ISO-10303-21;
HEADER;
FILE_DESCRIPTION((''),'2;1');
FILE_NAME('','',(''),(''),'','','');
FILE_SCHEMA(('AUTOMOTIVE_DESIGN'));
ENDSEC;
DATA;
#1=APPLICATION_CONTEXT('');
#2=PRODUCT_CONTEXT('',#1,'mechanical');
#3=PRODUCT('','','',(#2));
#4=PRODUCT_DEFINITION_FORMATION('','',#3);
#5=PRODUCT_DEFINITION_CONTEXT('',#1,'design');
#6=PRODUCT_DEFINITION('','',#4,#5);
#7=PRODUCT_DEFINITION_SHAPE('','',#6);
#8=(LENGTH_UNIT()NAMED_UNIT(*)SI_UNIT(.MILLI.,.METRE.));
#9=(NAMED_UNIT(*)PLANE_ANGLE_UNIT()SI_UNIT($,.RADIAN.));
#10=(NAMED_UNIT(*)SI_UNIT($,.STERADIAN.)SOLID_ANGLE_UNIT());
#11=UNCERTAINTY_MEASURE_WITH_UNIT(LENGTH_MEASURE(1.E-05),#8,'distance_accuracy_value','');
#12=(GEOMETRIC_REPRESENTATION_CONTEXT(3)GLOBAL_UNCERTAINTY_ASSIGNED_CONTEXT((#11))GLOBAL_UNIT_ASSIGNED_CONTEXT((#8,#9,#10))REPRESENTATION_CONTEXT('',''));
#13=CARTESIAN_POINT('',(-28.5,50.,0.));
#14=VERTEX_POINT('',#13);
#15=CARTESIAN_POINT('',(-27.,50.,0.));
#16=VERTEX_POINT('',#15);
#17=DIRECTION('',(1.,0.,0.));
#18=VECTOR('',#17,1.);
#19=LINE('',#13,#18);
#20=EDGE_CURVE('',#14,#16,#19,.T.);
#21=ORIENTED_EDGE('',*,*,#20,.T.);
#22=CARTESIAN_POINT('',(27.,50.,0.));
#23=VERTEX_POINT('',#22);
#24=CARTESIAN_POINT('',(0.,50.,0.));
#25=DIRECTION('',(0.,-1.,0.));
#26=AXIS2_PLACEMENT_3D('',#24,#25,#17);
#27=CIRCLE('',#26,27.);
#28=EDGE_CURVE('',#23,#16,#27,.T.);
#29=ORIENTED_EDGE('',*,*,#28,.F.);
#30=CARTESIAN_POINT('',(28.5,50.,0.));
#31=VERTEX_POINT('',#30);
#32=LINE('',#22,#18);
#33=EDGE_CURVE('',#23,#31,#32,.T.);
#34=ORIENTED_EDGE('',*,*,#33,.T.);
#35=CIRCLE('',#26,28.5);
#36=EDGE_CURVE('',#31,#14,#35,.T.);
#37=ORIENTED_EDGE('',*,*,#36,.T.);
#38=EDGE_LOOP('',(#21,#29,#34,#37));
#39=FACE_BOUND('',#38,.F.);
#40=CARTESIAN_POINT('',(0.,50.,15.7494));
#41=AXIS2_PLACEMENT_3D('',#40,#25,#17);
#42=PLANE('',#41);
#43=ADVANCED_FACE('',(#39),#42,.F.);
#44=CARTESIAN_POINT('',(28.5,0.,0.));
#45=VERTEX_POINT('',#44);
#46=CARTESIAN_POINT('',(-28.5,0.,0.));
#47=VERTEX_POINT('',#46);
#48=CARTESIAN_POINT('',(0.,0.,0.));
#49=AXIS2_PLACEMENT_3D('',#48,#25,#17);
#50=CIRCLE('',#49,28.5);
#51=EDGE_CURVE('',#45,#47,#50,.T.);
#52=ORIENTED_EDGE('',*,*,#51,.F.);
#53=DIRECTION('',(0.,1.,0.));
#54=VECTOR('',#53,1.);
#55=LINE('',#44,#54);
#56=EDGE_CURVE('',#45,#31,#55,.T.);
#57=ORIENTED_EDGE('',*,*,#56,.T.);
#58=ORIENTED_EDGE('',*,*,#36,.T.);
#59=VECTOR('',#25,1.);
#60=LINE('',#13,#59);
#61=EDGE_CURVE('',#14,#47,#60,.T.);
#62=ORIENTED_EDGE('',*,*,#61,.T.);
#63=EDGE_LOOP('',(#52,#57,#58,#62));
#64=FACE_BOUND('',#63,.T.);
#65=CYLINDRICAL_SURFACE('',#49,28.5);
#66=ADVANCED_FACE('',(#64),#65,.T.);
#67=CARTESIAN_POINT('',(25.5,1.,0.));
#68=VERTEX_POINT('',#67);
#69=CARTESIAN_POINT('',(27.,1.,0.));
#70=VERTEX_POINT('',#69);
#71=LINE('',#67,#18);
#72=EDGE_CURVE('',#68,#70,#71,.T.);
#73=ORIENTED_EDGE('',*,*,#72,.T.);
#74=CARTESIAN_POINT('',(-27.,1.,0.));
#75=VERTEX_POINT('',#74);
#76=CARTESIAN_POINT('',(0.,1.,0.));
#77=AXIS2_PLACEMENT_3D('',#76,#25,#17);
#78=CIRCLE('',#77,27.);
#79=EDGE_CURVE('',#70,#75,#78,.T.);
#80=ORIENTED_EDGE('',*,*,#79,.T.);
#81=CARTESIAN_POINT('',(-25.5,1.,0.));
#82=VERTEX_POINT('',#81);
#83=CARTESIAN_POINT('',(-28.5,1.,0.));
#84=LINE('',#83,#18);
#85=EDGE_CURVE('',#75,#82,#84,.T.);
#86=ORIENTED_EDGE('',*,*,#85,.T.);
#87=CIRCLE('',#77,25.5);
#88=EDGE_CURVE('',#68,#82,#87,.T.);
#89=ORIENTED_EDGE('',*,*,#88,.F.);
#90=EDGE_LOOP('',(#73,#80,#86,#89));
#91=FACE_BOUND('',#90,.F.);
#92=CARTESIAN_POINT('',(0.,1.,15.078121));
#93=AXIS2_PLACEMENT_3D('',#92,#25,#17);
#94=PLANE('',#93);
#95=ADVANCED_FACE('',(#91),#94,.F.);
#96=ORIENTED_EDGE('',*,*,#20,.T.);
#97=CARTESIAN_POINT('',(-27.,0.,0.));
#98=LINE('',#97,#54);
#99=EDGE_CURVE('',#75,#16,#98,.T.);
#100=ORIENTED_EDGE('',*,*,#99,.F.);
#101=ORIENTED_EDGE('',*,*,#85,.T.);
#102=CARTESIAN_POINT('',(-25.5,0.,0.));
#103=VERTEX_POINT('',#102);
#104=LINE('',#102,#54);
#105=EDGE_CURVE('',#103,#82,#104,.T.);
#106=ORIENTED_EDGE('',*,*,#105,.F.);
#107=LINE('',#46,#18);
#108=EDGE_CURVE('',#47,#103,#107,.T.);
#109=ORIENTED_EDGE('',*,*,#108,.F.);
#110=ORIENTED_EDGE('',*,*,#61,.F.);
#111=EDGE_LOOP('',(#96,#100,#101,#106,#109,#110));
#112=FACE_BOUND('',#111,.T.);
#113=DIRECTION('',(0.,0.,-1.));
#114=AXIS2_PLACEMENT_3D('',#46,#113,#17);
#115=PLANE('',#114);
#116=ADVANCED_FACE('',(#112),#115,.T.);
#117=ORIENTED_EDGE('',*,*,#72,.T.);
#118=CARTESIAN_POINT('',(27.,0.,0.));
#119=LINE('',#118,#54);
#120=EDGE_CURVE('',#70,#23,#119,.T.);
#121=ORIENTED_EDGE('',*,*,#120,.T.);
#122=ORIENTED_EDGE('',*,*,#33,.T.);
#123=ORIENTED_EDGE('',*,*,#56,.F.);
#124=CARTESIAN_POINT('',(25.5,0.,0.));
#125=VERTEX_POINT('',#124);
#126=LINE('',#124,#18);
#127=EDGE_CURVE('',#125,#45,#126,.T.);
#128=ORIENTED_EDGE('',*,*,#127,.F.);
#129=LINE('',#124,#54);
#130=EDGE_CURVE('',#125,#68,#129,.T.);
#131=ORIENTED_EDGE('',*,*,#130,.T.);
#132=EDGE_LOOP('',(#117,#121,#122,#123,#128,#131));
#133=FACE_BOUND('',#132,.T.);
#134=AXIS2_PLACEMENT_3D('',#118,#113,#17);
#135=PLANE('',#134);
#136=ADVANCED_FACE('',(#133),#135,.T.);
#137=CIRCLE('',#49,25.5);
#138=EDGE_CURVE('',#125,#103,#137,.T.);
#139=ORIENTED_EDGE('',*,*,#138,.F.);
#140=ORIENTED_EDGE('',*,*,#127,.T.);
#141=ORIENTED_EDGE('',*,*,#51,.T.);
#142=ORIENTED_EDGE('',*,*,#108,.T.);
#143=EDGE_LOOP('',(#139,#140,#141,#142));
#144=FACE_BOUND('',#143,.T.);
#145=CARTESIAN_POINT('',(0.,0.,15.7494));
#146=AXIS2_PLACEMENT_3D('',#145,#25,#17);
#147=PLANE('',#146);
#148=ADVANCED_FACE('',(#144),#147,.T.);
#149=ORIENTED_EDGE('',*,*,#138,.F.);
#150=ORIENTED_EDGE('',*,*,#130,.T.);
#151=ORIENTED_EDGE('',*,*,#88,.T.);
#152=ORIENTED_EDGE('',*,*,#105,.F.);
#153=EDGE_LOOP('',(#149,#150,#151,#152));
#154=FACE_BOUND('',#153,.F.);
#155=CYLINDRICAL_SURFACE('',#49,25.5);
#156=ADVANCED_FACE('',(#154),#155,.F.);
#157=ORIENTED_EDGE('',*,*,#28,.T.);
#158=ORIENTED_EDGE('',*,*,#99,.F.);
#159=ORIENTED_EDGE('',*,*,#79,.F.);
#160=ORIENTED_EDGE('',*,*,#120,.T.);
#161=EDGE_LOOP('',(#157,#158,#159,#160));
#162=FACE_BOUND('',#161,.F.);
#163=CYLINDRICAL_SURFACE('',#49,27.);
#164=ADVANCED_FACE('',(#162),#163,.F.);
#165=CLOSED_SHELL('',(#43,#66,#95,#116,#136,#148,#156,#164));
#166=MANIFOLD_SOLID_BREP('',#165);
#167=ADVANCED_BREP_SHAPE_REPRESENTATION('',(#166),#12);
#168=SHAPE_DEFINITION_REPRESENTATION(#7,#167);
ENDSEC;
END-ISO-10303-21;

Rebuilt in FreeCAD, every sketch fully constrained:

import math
import FreeCAD as App
import Part
import Sketcher
from FreeCAD import Vector

doc = App.newDocument("Part")
body = doc.addObject("PartDesign::Body", "Body")

# Sketch on XZ plane
sketch1 = body.newObject("Sketcher::SketchObject", "Sketch")
sketch1.AttachmentSupport = (doc.getObject("XZ_Plane"), [""])
sketch1.MapMode = "FlatFace"
sketch1.addGeometry([
    Part.ArcOfCircle(Part.Circle(Vector(0, 0, 0), Vector(0, 0, 1), 28.5), math.radians(0), math.radians(180)),
    Part.LineSegment(Vector(-28.5, 0, 0), Vector(-27, 0, 0)),
    Part.ArcOfCircle(Part.Circle(Vector(0, 0, 0), Vector(0, 0, 1), 27), math.radians(0), math.radians(180)),
    Part.LineSegment(Vector(27, 0, 0), Vector(28.5, 0, 0)),
], False)
sketch1.addConstraint([
    Sketcher.Constraint("Coincident", 0, 2, 1, 1),
    Sketcher.Constraint("Coincident", 1, 2, 2, 2),
    Sketcher.Constraint("Coincident", 2, 1, 3, 1),
    Sketcher.Constraint("Coincident", 3, 2, 0, 1),
    Sketcher.Constraint("Horizontal", 1),
    Sketcher.Constraint("Horizontal", 3),
    Sketcher.Constraint("Coincident", 0, 3, -1, 1),
    Sketcher.Constraint("Coincident", 2, 3, -1, 1),
    Sketcher.Constraint("PointOnObject", 0, 2, -1),
    Sketcher.Constraint("PointOnObject", 2, 1, -1),
    Sketcher.Constraint("Radius", 2, 27.0),
    Sketcher.Constraint("Radius", 0, 28.5),
])
pad1 = body.newObject("PartDesign::Pad", "Pad")
pad1.Profile = sketch1
pad1.Length = 50
pad1.Reversed = True

# Sketch on XZ plane
sketch2 = body.newObject("Sketcher::SketchObject", "Sketch001")
sketch2.AttachmentSupport = (doc.getObject("XZ_Plane"), [""])
sketch2.MapMode = "FlatFace"
sketch2.addGeometry([
    Part.ArcOfCircle(Part.Circle(Vector(0, 0, 0), Vector(0, 0, 1), 28.5), math.radians(0), math.radians(180)),
    Part.LineSegment(Vector(-28.5, 0, 0), Vector(-25.5, 0, 0)),
    Part.ArcOfCircle(Part.Circle(Vector(0, 0, 0), Vector(0, 0, 1), 25.5), math.radians(0), math.radians(180)),
    Part.LineSegment(Vector(25.5, 0, 0), Vector(28.5, 0, 0)),
], False)
sketch2.addConstraint([
    Sketcher.Constraint("Coincident", 0, 2, 1, 1),
    Sketcher.Constraint("Coincident", 1, 2, 2, 2),
    Sketcher.Constraint("Coincident", 2, 1, 3, 1),
    Sketcher.Constraint("Coincident", 3, 2, 0, 1),
    Sketcher.Constraint("Horizontal", 1),
    Sketcher.Constraint("Horizontal", 3),
    Sketcher.Constraint("Coincident", 0, 3, -1, 1),
    Sketcher.Constraint("Coincident", 2, 3, -1, 1),
    Sketcher.Constraint("PointOnObject", 0, 2, -1),
    Sketcher.Constraint("PointOnObject", 2, 1, -1),
    Sketcher.Constraint("Radius", 0, 28.5),
    Sketcher.Constraint("Radius", 2, 25.5),
])
pad2 = body.newObject("PartDesign::Pad", "Pad001")
pad2.Profile = sketch2
pad2.Length = 1
pad2.Reversed = True

doc.recompute()
